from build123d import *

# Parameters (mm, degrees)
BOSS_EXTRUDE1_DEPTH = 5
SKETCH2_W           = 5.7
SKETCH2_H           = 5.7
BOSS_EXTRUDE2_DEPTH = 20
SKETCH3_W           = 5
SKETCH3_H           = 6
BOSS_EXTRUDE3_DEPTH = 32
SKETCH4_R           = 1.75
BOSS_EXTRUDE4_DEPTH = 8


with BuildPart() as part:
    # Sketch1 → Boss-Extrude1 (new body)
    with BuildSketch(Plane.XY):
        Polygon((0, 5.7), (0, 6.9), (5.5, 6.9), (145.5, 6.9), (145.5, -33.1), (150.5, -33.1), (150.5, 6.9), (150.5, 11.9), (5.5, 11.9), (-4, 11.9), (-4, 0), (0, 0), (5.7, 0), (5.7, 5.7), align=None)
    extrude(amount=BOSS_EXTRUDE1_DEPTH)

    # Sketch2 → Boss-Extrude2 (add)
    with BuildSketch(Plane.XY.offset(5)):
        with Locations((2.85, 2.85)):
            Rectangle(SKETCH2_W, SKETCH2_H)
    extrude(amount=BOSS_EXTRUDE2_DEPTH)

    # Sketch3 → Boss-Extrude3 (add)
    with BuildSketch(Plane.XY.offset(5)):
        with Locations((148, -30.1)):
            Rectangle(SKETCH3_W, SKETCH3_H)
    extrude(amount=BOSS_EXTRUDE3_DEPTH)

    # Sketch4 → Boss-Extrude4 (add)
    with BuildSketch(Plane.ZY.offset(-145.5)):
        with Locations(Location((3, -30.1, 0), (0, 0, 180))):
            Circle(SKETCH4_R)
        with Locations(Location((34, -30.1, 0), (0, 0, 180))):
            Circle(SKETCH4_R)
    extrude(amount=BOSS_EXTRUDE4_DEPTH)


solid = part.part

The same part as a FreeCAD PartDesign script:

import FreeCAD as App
import Part
import Sketcher

doc = App.newDocument("Part")
body = doc.addObject("PartDesign::Body", "Body")

# Sketch on XY plane
sketch1 = doc.addObject("Sketcher::SketchObject", "Sketch")
body.addObject(sketch1)
sketch1.AttachmentSupport = (doc.XY_Plane, [""])
sketch1.MapMode = "FlatFace"
sketch1.addGeometry([
    Part.LineSegment(App.Vector(0, 5.7, 0), App.Vector(0, 6.9, 0)),  # 0
    Part.LineSegment(App.Vector(0, 6.9, 0), App.Vector(145.5, 6.9, 0)),  # 1
    Part.LineSegment(App.Vector(145.5, 6.9, 0), App.Vector(145.5, -33.1, 0)),  # 2
    Part.LineSegment(App.Vector(145.5, -33.1, 0), App.Vector(150.5, -33.1, 0)),  # 3
    Part.LineSegment(App.Vector(150.5, -33.1, 0), App.Vector(150.5, 11.9, 0)),  # 4
    Part.LineSegment(App.Vector(150.5, 11.9, 0), App.Vector(-4, 11.9, 0)),  # 5
    Part.LineSegment(App.Vector(-4, 11.9, 0), App.Vector(-4, 0, 0)),  # 6
    Part.LineSegment(App.Vector(-4, 0, 0), App.Vector(5.7, 0, 0)),  # 7
    Part.LineSegment(App.Vector(5.7, 0, 0), App.Vector(5.7, 5.7, 0)),  # 8
    Part.LineSegment(App.Vector(5.7, 5.7, 0), App.Vector(0, 5.7, 0)),  # 9
], False)
sketch1.addConstraint([
    Sketcher.Constraint("Coincident", 0, 2, 1, 1),
    Sketcher.Constraint("Coincident", 1, 2, 2, 1),
    Sketcher.Constraint("Coincident", 2, 2, 3, 1),
    Sketcher.Constraint("Coincident", 3, 2, 4, 1),
    Sketcher.Constraint("Coincident", 4, 2, 5, 1),
    Sketcher.Constraint("Coincident", 5, 2, 6, 1),
    Sketcher.Constraint("Coincident", 6, 2, 7, 1),
    Sketcher.Constraint("Coincident", 7, 2, 8, 1),
    Sketcher.Constraint("Coincident", 8, 2, 9, 1),
    Sketcher.Constraint("Coincident", 9, 2, 0, 1),
    Sketcher.Constraint("Vertical", 0),
    Sketcher.Constraint("Horizontal", 1),
    Sketcher.Constraint("Vertical", 2),
    Sketcher.Constraint("Horizontal", 3),
    Sketcher.Constraint("Vertical", 4),
    Sketcher.Constraint("Horizontal", 5),
    Sketcher.Constraint("Vertical", 6),
    Sketcher.Constraint("Horizontal", 7),
    Sketcher.Constraint("Vertical", 8),
    Sketcher.Constraint("Horizontal", 9),
    Sketcher.Constraint("PointOnObject", 0, 2, -2),
    Sketcher.Constraint("PointOnObject", 6, 2, -1),
    Sketcher.Constraint("Equal", 9, 8),
    Sketcher.Constraint("DistanceX", 3, 1, 3, 2, 5.0),
    Sketcher.Constraint("DistanceY", 2, 2, 2, 1, 40.0),
    Sketcher.Constraint("DistanceY", 4, 1, 4, 2, 45.0),
    Sketcher.Constraint("DistanceX", 1, 1, 1, 2, 145.5),
    Sketcher.Constraint("DistanceX", 5, 2, 5, 1, 154.5),
    Sketcher.Constraint("DistanceX", 7, 1, 7, 2, 9.7),
    Sketcher.Constraint("DistanceY", 0, 1, 0, 2, 1.2),
])
pad1 = doc.addObject("PartDesign::Pad", "Pad")
body.addObject(pad1)
pad1.Profile = sketch1
pad1.Length = 5

# Sketch on XY plane
sketch2 = doc.addObject("Sketcher::SketchObject", "Sketch001")
body.addObject(sketch2)
sketch2.AttachmentSupport = (doc.XY_Plane, [""])
sketch2.MapMode = "FlatFace"
sketch2.AttachmentOffset = App.Placement(App.Vector(0, 0, 5), App.Rotation())
sketch2.addGeometry([
    Part.LineSegment(App.Vector(0, 5.7, 0), App.Vector(0, 0, 0)),
    Part.LineSegment(App.Vector(0, 0, 0), App.Vector(5.7, 0, 0)),
    Part.LineSegment(App.Vector(5.7, 0, 0), App.Vector(5.7, 5.7, 0)),
    Part.LineSegment(App.Vector(5.7, 5.7, 0), App.Vector(0, 5.7, 0)),
], False)
sketch2.addConstraint([
    Sketcher.Constraint("Coincident", 0, 2, 1, 1),
    Sketcher.Constraint("Coincident", 1, 2, 2, 1),
    Sketcher.Constraint("Coincident", 2, 2, 3, 1),
    Sketcher.Constraint("Coincident", 3, 2, 0, 1),
    Sketcher.Constraint("Vertical", 0),
    Sketcher.Constraint("Horizontal", 1),
    Sketcher.Constraint("Vertical", 2),
    Sketcher.Constraint("Horizontal", 3),
    Sketcher.Constraint("Coincident", 0, 2, -1, 1),
    Sketcher.Constraint("Equal", 3, 0),
    Sketcher.Constraint("DistanceX", 1, 1, 1, 2, 5.7),
])
pad2 = doc.addObject("PartDesign::Pad", "Pad001")
body.addObject(pad2)
pad2.Profile = sketch2
pad2.Length = 20

# Sketch on XY plane
sketch3 = doc.addObject("Sketcher::SketchObject", "Sketch002")
body.addObject(sketch3)
sketch3.AttachmentSupport = (doc.XY_Plane, [""])
sketch3.MapMode = "FlatFace"
sketch3.AttachmentOffset = App.Placement(App.Vector(0, 0, 5), App.Rotation())
sketch3.addGeometry([
    Part.LineSegment(App.Vector(145.5, -27.1, 0), App.Vector(145.5, -33.1, 0)),
    Part.LineSegment(App.Vector(145.5, -33.1, 0), App.Vector(150.5, -33.1, 0)),
    Part.LineSegment(App.Vector(150.5, -33.1, 0), App.Vector(150.5, -27.1, 0)),
    Part.LineSegment(App.Vector(150.5, -27.1, 0), App.Vector(145.5, -27.1, 0)),
], False)
sketch3.addConstraint([
    Sketcher.Constraint("Coincident", 0, 2, 1, 1),
    Sketcher.Constraint("Coincident", 1, 2, 2, 1),
    Sketcher.Constraint("Coincident", 2, 2, 3, 1),
    Sketcher.Constraint("Coincident", 3, 2, 0, 1),
    Sketcher.Constraint("Vertical", 0),
    Sketcher.Constraint("Horizontal", 1),
    Sketcher.Constraint("Vertical", 2),
    Sketcher.Constraint("Horizontal", 3),
    Sketcher.Constraint("DistanceX", 1, 1, 1, 2, 5.0),
    Sketcher.Constraint("DistanceY", 0, 2, 0, 1, 6.0),
    Sketcher.Constraint("DistanceX", -1, 1, 0, 2, 145.5),
    Sketcher.Constraint("DistanceY", 0, 2, -1, 1, 33.1),
])
pad3 = doc.addObject("PartDesign::Pad", "Pad002")
body.addObject(pad3)
pad3.Profile = sketch3
pad3.Length = 32

# Sketch on YZ plane
sketch4 = doc.addObject("Sketcher::SketchObject", "Sketch003")
body.addObject(sketch4)
sketch4.AttachmentSupport = (doc.YZ_Plane, [""])
sketch4.MapMode = "FlatFace"
sketch4.AttachmentOffset = App.Placement(App.Vector(0, 0, 145.5), App.Rotation())
sketch4.addGeometry([
    Part.Circle(App.Vector(-30.1, 3, 0), App.Vector(0, 0, 1), 1.75),
    Part.Circle(App.Vector(-30.1, 34, 0), App.Vector(0, 0, 1), 1.75),
], False)
sketch4.addConstraint([
    Sketcher.Constraint("Equal", 0, 1),
    Sketcher.Constraint("Vertical", 0, 3, 1, 3),
    Sketcher.Constraint("Diameter", 0, 3.5),
    Sketcher.Constraint("DistanceY", -1, 1, 0, 3, 3.0),
    Sketcher.Constraint("DistanceY", -1, 1, 1, 3, 34.0),
    Sketcher.Constraint("DistanceX", 0, 3, -1, 1, 30.1),
])
pad4 = doc.addObject("PartDesign::Pad", "Pad003")
body.addObject(pad4)
pad4.Profile = sketch4
pad4.Length = 8
pad4.Reversed = True

doc.recompute()
